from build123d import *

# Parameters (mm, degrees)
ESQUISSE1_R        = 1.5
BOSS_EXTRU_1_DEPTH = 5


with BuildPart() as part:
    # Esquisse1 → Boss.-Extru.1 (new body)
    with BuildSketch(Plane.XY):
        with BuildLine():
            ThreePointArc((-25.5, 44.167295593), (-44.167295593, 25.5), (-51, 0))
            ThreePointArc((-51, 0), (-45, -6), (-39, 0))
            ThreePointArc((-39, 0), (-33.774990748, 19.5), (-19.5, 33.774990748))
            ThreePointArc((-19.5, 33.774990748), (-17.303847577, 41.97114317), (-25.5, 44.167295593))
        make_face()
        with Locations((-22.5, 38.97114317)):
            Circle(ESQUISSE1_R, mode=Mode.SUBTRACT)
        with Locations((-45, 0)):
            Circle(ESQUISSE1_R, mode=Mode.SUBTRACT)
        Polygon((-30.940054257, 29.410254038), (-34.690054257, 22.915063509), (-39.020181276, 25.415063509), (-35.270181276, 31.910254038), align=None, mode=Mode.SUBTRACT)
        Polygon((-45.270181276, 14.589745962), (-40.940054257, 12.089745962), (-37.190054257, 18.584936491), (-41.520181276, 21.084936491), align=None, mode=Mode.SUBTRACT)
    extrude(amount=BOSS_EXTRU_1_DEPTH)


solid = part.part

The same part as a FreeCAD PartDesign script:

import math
import FreeCAD as App
import Part
import Sketcher
Q = App.Units.Quantity


def add_polygon(sketch, points):
    """Adds a closed chain of lines whose ends are joined by coincident constraints."""
    first, n = sketch.GeometryCount, len(points)
    for a, b in zip(points, points[1:] + points[:1]):
        sketch.addGeometry(Part.LineSegment(App.Vector(*a, 0), App.Vector(*b, 0)), False)
    for i in range(n):
        sketch.addConstraint(Sketcher.Constraint("Coincident", first + i, 2, first + (i + 1) % n, 1))

doc = App.newDocument("Part")
body = doc.addObject("PartDesign::Body", "Body")

# Sketch on XY plane
sketch1 = doc.addObject("Sketcher::SketchObject", "Sketch")
body.addObject(sketch1)
sketch1.AttachmentSupport = (doc.XY_Plane, [""])
sketch1.MapMode = "FlatFace"
sketch1.addGeometry(Part.ArcOfCircle(Part.Circle(App.Vector(0, 0, 0), App.Vector(0, 0, 1), 51), math.radians(120), math.radians(180)), False)  # 0
sketch1.addGeometry(Part.ArcOfCircle(Part.Circle(App.Vector(-45, 0, 0), App.Vector(0, 0, 1), 6), math.radians(180), math.radians(360)), False)  # 1
sketch1.addGeometry(Part.ArcOfCircle(Part.Circle(App.Vector(0, 0, 0), App.Vector(0, 0, 1), 39), math.radians(120), math.radians(180)), False)  # 2
sketch1.addGeometry(Part.ArcOfCircle(Part.Circle(App.Vector(-22.5, 39, 0), App.Vector(0, 0, 1), 6), math.radians(-60), math.radians(120)), False)  # 3
sketch1.addGeometry(Part.Circle(App.Vector(-45, 0, 0), App.Vector(0, 0, 1), 1.5), False)  # 4
add_polygon(sketch1, [(-40.9, 12.1), (-45.3, 14.6), (-41.5, 21.1), (-37.2, 18.6)])  # lines 5-8
add_polygon(sketch1, [(-35.3, 31.9), (-30.9, 29.4), (-34.7, 22.9), (-39, 25.4)])  # lines 9-12
sketch1.addGeometry(Part.Circle(App.Vector(-22.5, 39, 0), App.Vector(0, 0, 1), 1.5), False)  # 13
sketch1.addConstraint([
    Sketcher.Constraint("Tangent", 0, 2, 1, 1),
    Sketcher.Constraint("Tangent", 1, 2, 2, 2),
    Sketcher.Constraint("Tangent", 2, 1, 3, 1),
    Sketcher.Constraint("Tangent", 3, 2, 0, 1),
    Sketcher.Constraint("Coincident", 0, 3, -1, 1),
    Sketcher.Constraint("Coincident", 2, 3, -1, 1),
    Sketcher.Constraint("Coincident", 4, 3, 1, 3),
    Sketcher.Constraint("Coincident", 13, 3, 3, 3),
    Sketcher.Constraint("Equal", 4, 13),
    Sketcher.Constraint("PointOnObject", 1, 3, -1),
    Sketcher.Constraint("Perpendicular", 5, 6),
    Sketcher.Constraint("Perpendicular", 6, 7),
    Sketcher.Constraint("Perpendicular", 7, 8),
    Sketcher.Constraint("Perpendicular", 8, 9),
    Sketcher.Constraint("Perpendicular", 9, 10),
    Sketcher.Constraint("Perpendicular", 10, 11),
    Sketcher.Constraint("Perpendicular", 11, 12),
    Sketcher.Constraint("Equal", 7, 9),
    Sketcher.Constraint("Equal", 8, 10),
    Sketcher.Constraint("Diameter", 4, Q("3 mm")),
    Sketcher.Constraint("Radius", 0, Q("51 mm")),
    Sketcher.Constraint("Radius", 1, Q("6 mm")),
    Sketcher.Constraint("Angle", 5, Q("150 deg")),
    Sketcher.Constraint("Distance", 5, Q("5 mm")),
    Sketcher.Constraint("DistanceX", 13, 3, 2, 1, Q("3 mm")),
    Sketcher.Constraint("Distance", 6, Q("7.5 mm")),
    Sketcher.Constraint("DistanceX", 7, 2, 10, 2, Q("2.5 mm")),
    Sketcher.Constraint("DistanceX", 5, 2, -1, 1, Q("45.270181 mm")),
    Sketcher.Constraint("DistanceY", 9, 2, 13, 3, Q("9.560889 mm")),
    Sketcher.Constraint("DistanceY", -1, 1, 5, 2, Q("14.589746 mm")),
])
pad1 = doc.addObject("PartDesign::Pad", "Pad")
body.addObject(pad1)
pad1.Profile = sketch1
pad1.Length = 5

doc.recompute()
